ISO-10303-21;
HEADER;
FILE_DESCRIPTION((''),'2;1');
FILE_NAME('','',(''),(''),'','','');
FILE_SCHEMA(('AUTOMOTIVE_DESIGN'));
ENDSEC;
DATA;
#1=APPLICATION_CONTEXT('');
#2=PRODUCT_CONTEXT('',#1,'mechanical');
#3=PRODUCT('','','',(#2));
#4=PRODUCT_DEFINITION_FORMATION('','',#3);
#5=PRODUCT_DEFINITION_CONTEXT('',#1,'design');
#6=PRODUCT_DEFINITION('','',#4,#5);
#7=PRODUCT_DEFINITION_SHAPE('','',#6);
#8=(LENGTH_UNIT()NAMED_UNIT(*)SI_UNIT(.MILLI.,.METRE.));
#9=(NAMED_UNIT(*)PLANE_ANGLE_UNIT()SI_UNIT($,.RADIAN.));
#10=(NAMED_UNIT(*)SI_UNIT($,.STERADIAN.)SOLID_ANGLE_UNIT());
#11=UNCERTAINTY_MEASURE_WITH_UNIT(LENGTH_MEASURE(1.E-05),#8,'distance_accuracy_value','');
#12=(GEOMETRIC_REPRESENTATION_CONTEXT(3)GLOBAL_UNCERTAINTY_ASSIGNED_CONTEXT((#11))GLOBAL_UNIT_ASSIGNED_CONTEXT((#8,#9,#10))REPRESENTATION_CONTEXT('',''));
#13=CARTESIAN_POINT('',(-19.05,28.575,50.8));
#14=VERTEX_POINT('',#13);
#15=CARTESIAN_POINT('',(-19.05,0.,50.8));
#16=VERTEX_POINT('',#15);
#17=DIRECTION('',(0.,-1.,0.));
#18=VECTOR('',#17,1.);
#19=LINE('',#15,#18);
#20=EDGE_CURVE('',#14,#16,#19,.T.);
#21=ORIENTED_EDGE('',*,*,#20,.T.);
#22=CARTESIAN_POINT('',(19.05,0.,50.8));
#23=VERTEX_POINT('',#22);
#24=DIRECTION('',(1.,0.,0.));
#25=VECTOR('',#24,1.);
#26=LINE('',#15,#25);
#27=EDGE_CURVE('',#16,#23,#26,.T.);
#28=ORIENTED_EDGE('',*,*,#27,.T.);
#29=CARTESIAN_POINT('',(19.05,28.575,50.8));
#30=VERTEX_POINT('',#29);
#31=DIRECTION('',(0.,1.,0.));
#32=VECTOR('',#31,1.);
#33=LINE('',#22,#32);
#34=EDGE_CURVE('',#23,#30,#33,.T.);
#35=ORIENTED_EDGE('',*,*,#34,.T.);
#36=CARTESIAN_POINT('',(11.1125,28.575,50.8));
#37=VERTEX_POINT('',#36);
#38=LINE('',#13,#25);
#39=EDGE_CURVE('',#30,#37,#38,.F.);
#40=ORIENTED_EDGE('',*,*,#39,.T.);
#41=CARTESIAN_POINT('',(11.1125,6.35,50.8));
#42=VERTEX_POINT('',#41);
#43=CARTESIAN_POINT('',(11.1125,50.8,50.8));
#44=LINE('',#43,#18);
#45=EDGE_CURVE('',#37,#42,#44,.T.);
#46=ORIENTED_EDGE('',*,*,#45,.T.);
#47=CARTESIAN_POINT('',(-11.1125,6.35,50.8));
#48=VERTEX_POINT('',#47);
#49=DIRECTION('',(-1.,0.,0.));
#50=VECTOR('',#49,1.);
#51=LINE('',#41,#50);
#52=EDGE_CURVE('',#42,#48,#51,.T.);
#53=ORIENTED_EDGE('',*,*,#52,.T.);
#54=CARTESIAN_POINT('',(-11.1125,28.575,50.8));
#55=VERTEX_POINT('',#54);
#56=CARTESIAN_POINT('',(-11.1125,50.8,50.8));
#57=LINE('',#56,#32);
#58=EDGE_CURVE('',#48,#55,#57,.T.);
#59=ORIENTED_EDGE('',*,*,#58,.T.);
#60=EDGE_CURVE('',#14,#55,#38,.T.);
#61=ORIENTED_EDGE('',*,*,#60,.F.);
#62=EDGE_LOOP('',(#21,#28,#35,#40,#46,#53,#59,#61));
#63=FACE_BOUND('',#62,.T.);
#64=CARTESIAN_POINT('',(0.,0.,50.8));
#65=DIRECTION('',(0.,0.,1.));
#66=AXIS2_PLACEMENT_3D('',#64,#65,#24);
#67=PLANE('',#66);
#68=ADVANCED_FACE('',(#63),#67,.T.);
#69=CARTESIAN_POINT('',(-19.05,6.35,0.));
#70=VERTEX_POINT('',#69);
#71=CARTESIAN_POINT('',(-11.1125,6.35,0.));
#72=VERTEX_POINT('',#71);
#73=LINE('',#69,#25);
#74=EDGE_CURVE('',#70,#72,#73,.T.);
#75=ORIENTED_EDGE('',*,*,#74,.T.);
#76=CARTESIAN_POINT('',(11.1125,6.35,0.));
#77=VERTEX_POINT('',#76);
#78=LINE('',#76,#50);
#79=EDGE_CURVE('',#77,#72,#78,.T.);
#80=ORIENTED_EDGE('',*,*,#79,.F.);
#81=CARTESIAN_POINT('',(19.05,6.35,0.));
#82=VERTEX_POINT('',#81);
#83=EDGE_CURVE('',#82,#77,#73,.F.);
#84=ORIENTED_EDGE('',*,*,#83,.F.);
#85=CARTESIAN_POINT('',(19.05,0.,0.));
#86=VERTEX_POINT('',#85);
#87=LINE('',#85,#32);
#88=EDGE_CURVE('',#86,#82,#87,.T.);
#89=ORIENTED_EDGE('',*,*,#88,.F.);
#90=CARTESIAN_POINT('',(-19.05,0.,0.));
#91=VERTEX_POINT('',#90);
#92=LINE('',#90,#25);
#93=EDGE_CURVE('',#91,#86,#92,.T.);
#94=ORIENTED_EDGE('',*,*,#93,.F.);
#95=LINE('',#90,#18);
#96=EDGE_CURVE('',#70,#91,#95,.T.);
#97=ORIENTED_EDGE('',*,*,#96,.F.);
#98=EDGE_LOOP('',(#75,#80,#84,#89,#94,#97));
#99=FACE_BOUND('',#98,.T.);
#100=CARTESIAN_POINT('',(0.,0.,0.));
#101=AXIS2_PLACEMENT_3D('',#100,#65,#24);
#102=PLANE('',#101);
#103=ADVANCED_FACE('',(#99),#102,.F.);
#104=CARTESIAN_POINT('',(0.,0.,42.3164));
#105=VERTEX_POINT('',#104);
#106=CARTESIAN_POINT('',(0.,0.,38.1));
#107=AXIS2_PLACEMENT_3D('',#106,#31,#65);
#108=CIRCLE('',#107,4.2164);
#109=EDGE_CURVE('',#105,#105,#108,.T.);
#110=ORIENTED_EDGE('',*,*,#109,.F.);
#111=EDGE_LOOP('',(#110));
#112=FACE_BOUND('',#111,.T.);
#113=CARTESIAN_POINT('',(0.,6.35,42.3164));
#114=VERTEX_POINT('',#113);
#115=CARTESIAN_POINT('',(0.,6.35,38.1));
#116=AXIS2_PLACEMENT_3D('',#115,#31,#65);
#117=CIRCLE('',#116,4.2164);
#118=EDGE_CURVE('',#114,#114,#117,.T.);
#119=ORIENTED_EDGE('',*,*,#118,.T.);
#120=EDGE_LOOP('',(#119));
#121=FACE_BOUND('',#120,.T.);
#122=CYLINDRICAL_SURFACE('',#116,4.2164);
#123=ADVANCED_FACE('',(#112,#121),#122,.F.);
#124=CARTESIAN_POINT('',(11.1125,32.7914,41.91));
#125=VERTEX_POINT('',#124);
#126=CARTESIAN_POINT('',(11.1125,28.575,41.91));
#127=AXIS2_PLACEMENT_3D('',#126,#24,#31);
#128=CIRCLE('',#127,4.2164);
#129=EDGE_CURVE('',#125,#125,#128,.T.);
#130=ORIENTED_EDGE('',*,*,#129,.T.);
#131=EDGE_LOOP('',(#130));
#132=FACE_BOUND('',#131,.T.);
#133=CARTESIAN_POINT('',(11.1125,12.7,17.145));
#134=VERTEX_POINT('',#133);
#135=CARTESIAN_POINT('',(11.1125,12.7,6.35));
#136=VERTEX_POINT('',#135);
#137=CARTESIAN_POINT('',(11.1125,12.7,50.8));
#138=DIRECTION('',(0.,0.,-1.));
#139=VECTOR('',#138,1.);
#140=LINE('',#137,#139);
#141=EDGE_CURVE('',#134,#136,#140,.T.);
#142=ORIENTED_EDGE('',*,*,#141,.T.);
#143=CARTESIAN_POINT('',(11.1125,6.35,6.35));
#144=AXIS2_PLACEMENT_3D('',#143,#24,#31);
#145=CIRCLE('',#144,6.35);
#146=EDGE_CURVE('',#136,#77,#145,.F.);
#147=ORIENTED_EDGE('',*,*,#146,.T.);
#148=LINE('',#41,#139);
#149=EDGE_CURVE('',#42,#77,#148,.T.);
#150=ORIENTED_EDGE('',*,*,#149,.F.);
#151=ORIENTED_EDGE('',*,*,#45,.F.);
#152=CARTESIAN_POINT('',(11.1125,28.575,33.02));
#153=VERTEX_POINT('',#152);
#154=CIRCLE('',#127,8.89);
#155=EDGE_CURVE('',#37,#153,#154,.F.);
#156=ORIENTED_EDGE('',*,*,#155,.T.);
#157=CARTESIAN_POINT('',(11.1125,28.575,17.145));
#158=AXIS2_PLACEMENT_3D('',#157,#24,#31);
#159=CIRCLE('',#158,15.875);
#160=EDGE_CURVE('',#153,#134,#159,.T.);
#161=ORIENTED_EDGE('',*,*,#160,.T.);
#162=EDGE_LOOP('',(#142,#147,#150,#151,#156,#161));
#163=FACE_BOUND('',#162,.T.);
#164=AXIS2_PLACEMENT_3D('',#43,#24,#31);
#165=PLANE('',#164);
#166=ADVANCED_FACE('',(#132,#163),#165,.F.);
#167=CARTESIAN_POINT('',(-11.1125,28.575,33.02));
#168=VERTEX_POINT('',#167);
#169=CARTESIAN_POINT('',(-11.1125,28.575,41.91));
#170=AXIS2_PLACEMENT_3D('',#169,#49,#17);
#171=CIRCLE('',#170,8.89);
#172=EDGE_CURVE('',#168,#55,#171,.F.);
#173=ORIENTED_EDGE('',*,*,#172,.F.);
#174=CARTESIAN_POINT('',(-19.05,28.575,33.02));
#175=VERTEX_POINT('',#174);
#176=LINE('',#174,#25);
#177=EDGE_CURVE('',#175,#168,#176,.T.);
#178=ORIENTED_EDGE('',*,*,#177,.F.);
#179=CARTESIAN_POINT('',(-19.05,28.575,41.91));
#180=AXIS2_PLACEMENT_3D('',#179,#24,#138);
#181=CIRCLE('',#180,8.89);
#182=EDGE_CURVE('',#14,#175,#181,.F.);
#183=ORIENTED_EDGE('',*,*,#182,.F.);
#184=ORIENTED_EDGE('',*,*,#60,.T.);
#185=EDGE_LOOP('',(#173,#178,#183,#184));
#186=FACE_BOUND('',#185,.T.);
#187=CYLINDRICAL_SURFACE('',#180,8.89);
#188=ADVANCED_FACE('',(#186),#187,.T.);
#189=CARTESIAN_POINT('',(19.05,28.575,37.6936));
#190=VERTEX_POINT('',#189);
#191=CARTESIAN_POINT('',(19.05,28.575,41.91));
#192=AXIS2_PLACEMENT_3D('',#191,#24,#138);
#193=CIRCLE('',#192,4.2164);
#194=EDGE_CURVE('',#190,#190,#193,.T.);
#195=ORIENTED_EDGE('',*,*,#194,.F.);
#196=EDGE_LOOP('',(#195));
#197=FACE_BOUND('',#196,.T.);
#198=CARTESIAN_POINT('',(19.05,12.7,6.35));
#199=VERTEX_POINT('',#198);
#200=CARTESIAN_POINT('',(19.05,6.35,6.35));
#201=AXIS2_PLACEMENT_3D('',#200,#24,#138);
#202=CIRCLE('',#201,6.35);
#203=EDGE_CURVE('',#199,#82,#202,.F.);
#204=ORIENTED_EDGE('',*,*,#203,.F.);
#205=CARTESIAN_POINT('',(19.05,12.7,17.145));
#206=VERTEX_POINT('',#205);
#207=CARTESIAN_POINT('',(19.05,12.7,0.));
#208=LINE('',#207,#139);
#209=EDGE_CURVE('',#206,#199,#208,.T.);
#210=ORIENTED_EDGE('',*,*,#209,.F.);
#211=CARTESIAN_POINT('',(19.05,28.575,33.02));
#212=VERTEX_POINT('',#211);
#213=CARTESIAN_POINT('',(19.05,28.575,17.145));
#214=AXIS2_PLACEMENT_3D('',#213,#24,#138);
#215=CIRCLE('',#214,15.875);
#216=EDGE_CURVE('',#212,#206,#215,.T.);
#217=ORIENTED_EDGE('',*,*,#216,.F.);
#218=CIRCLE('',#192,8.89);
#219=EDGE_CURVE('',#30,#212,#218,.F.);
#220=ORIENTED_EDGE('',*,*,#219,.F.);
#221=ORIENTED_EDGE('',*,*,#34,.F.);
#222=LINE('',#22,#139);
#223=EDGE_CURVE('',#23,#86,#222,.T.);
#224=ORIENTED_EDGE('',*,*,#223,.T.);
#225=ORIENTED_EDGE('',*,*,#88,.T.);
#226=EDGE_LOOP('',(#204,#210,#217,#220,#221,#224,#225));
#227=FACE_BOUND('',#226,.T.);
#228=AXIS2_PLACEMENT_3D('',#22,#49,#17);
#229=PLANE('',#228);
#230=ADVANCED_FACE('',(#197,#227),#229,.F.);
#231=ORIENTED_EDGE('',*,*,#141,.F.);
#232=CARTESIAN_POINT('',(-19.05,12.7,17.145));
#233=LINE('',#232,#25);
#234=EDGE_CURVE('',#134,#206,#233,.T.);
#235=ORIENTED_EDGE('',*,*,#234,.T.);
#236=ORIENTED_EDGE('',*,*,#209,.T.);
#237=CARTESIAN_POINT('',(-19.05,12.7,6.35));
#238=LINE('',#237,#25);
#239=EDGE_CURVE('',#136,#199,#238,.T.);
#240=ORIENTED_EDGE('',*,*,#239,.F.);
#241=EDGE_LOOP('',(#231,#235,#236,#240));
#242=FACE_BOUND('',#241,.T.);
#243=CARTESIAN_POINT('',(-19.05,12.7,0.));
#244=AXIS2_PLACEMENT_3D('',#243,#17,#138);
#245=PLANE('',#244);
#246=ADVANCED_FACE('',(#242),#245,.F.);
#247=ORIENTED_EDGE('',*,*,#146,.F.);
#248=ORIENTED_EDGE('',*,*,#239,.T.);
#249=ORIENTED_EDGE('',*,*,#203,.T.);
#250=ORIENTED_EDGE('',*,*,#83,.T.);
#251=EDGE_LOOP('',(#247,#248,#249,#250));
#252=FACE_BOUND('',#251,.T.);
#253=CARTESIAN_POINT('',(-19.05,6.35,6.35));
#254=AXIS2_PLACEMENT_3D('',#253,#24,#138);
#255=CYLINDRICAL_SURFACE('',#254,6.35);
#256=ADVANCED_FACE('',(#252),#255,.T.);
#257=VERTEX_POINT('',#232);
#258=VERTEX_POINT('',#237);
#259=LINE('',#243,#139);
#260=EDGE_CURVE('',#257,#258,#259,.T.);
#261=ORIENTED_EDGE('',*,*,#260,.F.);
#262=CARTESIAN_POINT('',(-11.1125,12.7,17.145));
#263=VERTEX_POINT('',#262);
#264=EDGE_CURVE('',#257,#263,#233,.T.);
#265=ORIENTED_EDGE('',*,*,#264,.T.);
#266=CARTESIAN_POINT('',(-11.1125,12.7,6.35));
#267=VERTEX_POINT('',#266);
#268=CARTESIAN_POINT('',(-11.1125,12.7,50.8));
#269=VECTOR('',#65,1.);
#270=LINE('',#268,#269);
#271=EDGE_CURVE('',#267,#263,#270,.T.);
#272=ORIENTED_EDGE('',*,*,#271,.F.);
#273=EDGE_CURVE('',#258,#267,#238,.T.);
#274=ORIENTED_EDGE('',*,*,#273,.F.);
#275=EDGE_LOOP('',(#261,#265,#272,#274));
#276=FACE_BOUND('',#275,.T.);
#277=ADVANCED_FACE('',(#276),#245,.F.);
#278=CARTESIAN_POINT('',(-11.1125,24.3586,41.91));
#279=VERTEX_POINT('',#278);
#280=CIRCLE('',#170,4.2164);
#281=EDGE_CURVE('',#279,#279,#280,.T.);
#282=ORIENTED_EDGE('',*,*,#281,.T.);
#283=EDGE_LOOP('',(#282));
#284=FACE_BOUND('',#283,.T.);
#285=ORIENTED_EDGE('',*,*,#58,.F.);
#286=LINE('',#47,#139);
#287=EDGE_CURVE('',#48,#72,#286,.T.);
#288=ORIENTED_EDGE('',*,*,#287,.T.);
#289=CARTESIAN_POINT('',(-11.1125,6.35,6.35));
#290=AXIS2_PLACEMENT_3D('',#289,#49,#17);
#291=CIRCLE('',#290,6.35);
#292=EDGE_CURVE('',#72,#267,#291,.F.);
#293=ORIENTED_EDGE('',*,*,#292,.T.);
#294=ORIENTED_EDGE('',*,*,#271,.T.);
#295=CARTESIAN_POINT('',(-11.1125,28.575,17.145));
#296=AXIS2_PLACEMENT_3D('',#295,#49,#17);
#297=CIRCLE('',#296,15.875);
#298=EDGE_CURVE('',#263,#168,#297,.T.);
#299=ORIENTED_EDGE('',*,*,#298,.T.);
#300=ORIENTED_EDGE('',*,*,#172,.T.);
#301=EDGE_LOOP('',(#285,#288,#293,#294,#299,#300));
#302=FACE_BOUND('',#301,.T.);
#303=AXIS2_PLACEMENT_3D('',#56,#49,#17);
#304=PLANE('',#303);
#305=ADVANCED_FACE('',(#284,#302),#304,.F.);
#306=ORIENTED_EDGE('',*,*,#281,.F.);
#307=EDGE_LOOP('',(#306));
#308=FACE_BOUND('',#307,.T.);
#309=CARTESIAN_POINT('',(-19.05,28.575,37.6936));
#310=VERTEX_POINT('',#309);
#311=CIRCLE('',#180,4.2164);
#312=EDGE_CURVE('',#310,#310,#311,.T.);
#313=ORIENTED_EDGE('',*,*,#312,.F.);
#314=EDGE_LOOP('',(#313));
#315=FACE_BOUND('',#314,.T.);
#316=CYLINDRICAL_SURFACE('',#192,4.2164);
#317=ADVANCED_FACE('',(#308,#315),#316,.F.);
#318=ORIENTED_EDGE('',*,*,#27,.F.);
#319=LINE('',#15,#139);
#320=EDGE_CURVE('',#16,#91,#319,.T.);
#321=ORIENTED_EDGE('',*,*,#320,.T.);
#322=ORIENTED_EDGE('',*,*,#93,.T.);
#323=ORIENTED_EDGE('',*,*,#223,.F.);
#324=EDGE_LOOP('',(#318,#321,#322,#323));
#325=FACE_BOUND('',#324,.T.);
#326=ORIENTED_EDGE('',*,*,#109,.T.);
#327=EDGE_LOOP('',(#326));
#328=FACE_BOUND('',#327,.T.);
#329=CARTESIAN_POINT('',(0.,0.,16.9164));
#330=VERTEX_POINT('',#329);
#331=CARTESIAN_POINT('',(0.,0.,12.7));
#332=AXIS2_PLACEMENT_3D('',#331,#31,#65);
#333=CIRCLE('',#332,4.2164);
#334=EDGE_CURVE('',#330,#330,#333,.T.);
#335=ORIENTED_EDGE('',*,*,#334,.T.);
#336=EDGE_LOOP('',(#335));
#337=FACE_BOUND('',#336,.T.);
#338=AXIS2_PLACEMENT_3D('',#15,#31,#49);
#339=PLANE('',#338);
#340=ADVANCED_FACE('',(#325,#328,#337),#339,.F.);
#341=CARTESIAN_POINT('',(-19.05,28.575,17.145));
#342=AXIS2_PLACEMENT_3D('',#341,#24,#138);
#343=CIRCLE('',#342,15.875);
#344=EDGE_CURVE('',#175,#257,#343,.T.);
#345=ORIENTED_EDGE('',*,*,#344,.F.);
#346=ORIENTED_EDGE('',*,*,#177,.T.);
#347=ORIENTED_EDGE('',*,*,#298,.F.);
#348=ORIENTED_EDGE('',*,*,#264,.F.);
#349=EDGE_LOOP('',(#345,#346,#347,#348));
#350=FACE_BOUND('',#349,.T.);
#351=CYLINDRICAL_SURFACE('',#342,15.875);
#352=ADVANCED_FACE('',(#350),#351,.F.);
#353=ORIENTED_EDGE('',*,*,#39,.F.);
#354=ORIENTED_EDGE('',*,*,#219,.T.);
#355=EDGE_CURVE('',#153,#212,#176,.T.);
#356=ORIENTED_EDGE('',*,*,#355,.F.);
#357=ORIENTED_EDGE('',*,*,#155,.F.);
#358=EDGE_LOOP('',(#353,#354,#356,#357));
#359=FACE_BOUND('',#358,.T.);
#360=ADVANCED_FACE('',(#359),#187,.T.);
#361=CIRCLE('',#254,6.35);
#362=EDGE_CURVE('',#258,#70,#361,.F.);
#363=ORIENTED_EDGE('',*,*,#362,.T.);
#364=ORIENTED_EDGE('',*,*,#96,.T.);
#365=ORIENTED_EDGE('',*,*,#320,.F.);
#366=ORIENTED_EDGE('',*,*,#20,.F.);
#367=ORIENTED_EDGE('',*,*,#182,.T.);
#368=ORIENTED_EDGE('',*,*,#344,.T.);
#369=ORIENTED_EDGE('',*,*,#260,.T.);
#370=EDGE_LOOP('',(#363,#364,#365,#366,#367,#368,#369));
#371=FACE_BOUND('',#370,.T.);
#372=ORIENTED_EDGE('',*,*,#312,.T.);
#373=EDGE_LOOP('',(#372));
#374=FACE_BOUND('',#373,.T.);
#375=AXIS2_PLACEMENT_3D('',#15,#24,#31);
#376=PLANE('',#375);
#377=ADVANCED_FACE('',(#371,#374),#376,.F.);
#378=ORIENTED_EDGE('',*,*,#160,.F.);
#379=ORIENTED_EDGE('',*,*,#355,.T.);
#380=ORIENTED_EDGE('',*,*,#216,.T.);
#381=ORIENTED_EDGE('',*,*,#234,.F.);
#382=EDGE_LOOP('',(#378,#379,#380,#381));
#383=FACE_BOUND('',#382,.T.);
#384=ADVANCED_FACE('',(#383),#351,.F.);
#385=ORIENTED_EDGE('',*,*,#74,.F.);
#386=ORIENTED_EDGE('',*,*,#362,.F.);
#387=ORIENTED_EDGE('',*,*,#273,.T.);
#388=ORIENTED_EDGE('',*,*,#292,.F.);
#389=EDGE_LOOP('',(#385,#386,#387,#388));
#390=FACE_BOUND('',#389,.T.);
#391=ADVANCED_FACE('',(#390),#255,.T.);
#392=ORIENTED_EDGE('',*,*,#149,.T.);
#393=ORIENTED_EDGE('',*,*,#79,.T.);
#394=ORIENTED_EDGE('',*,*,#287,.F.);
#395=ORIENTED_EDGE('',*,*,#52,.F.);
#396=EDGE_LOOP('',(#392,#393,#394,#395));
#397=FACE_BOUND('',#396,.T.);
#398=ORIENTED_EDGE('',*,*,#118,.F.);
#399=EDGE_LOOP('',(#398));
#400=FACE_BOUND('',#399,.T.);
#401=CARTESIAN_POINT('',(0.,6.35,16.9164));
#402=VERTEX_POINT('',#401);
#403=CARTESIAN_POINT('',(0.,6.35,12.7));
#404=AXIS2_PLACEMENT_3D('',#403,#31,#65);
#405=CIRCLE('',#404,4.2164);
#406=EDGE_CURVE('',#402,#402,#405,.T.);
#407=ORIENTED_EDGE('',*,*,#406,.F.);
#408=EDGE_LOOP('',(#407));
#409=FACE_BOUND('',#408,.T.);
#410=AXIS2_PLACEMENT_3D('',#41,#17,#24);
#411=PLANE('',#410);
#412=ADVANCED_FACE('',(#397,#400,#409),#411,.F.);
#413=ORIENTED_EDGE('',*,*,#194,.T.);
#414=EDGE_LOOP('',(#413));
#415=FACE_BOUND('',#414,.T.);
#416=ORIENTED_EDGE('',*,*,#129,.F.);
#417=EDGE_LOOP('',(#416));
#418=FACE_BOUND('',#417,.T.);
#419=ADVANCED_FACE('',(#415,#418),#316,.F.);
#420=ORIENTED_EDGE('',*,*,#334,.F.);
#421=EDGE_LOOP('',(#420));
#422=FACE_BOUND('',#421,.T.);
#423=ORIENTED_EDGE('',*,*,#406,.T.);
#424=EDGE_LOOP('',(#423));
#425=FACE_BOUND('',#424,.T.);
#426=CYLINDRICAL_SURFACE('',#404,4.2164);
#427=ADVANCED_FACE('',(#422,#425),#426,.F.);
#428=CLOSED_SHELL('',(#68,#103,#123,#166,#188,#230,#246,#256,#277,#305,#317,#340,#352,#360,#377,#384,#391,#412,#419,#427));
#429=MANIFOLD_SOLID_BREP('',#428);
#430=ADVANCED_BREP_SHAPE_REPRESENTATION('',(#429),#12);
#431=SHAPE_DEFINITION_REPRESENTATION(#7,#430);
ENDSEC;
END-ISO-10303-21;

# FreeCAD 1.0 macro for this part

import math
import FreeCAD as App
import Part
import Sketcher
from FreeCAD import Vector
Q = App.Units.Quantity

doc = App.newDocument("Part")
body = doc.addObject("PartDesign::Body", "Body")

sketch1 = doc.addObject("Sketcher::SketchObject", "Sketch")
body.addObject(sketch1)
sketch1.AttachmentSupport = (doc.XY_Plane, [""])
sketch1.MapMode = "FlatFace"
sketch1.addGeometry([
    Part.LineSegment(Vector(-19, 0, 0), Vector(19, 0, 0)),
    Part.LineSegment(Vector(19, 0, 0), Vector(19, 51, 0)),
    Part.LineSegment(Vector(19, 51, 0), Vector(11, 51, 0)),
    Part.LineSegment(Vector(11, 51, 0), Vector(11, 6, 0)),
    Part.LineSegment(Vector(11, 6, 0), Vector(-11, 6, 0)),
    Part.LineSegment(Vector(-11, 6, 0), Vector(-11, 51, 0)),
    Part.LineSegment(Vector(-11, 51, 0), Vector(-19, 51, 0)),
    Part.LineSegment(Vector(-19, 51, 0), Vector(-19, 0, 0)),
], False)
sketch1.addConstraint([
    Sketcher.Constraint("Coincident", 0, 2, 1, 1),
    Sketcher.Constraint("Coincident", 1, 2, 2, 1),
    Sketcher.Constraint("Coincident", 2, 2, 3, 1),
    Sketcher.Constraint("Coincident", 3, 2, 4, 1),
    Sketcher.Constraint("Coincident", 4, 2, 5, 1),
    Sketcher.Constraint("Coincident", 5, 2, 6, 1),
    Sketcher.Constraint("Coincident", 6, 2, 7, 1),
    Sketcher.Constraint("Coincident", 7, 2, 0, 1),
    Sketcher.Constraint("Horizontal", 0),
    Sketcher.Constraint("Vertical", 1),
    Sketcher.Constraint("Horizontal", 2),
    Sketcher.Constraint("Vertical", 3),
    Sketcher.Constraint("Horizontal", 4),
    Sketcher.Constraint("Vertical", 5),
    Sketcher.Constraint("Horizontal", 6),
    Sketcher.Constraint("Vertical", 7),
    Sketcher.Constraint("Symmetric", 0, 2, 7, 2, -1, 1),
    Sketcher.Constraint("Symmetric", 2, 2, 5, 2, -2),
    Sketcher.Constraint("DistanceY", 1, 1, 1, 2, Q("2 in")),
    Sketcher.Constraint("DistanceX", 0, 1, 0, 2, Q("1.5 in")),
    Sketcher.Constraint("DistanceY", 3, 2, 3, 1, Q("1.75 in")),
    Sketcher.Constraint("DistanceX", 2, 2, 2, 1, Q("0.3125 in")),
])
pad1 = doc.addObject("PartDesign::Pad", "Pad")
body.addObject(pad1)
pad1.Profile = sketch1
pad1.Length = Q("2 in")

sketch2 = doc.addObject("Sketcher::SketchObject", "Sketch001")
body.addObject(sketch2)
sketch2.AttachmentSupport = (doc.XZ_Plane, [""])
sketch2.MapMode = "FlatFace"
sketch2.AttachmentOffset = App.Placement(Vector(0, 0, -0.25 * 25.4), App.Rotation())
sketch2.addGeometry([
    Part.Circle(Vector(0, 38.1, 0), Vector(0, 0, 1), 4.2),
    Part.Circle(Vector(0, 12.7, 0), Vector(0, 0, 1), 4.2),
], False)
sketch2.addConstraint([
    Sketcher.Constraint("Equal", 0, 1),
    Sketcher.Constraint("PointOnObject", 0, 3, -2),
    Sketcher.Constraint("PointOnObject", 1, 3, -2),
    Sketcher.Constraint("Diameter", 0, Q("0.332 in")),
    Sketcher.Constraint("DistanceY", 1, 3, 0, 3, Q("1 in")),
    Sketcher.Constraint("DistanceY", -1, 1, 0, 3, Q("1.5 in")),
])
doc.recompute()
hole = doc.addObject("PartDesign::Hole", "Hole")
body.addObject(hole)
hole.Profile = sketch2
hole.ThreadType = "None"
hole.Diameter = Q("0.332 in")
hole.DepthType = "ThroughAll"
hole.Reversed = True

sketch3 = doc.addObject("Sketcher::SketchObject", "Sketch002")
body.addObject(sketch3)
sketch3.AttachmentSupport = (doc.YZ_Plane, [""])
sketch3.MapMode = "FlatFace"
sketch3.addGeometry([
    Part.LineSegment(Vector(51, 0, 0), Vector(51, 51, 0)),
    Part.LineSegment(Vector(51, 51, 0), Vector(29, 51, 0)),
    Part.ArcOfCircle(Part.Circle(Vector(29, 42, 0), Vector(0, 0, 1), 9), math.radians(-90), math.radians(90)),
    Part.ArcOfCircle(Part.Circle(Vector(29, 17, 0), Vector(0, 0, 1), 16), math.radians(90), math.radians(180)),
    Part.LineSegment(Vector(13, 17, 0), Vector(13, 6, 0)),
    Part.ArcOfCircle(Part.Circle(Vector(6, 6, 0), Vector(0, 0, 1), 6), math.radians(-90), math.radians(0)),
    Part.LineSegment(Vector(6, 0, 0), Vector(51, 0, 0)),
], False)
sketch3.addConstraint([
    Sketcher.Constraint("Coincident", 0, 2, 1, 1),
    Sketcher.Constraint("Tangent", 1, 2, 2, 2),
    Sketcher.Constraint("Tangent", 2, 1, 3, 1),
    Sketcher.Constraint("Tangent", 3, 2, 4, 1),
    Sketcher.Constraint("Tangent", 4, 2, 5, 2),
    Sketcher.Constraint("Tangent", 5, 1, 6, 1),
    Sketcher.Constraint("Coincident", 6, 2, 0, 1),
    Sketcher.Constraint("Vertical", 0),
    Sketcher.Constraint("Horizontal", 1),
    Sketcher.Constraint("Vertical", 4),
    Sketcher.Constraint("Horizontal", 6),
    Sketcher.Constraint("PointOnObject", 5, 1, -1),
    Sketcher.Constraint("Vertical", 2, 3, 3, 3),
    Sketcher.Constraint("DistanceY", 0, 1, 0, 2, Q("2 in")),
    Sketcher.Constraint("Radius", 2, Q("0.35 in")),
    Sketcher.Constraint("Radius", 5, Q("0.25 in")),
    Sketcher.Constraint("DistanceX", -1, 1, 0, 2, Q("2 in")),
    Sketcher.Constraint("Radius", 3, Q("0.625 in")),
    Sketcher.Constraint("DistanceX", 6, 1, 6, 2, Q("1.75 in")),
])
pocket1 = doc.addObject("PartDesign::Pocket", "Pocket")
body.addObject(pocket1)
pocket1.Profile = sketch3
pocket1.Type = "ThroughAll"
pocket1.Midplane = True

sketch4 = doc.addObject("Sketcher::SketchObject", "Sketch003")
body.addObject(sketch4)
sketch4.AttachmentSupport = (doc.YZ_Plane, [""])
sketch4.MapMode = "FlatFace"
sketch4.AttachmentOffset = App.Placement(Vector(0, 0, 0.75 * 25.4), App.Rotation())
sketch4.addGeometry(Part.Circle(Vector(28.6, 41.9, 0), Vector(0, 0, 1), 4.2), False)
sketch4.addConstraint([
    Sketcher.Constraint("Diameter", 0, Q("0.332 in")),
    Sketcher.Constraint("DistanceY", -1, 1, 0, 3, Q("1.65 in")),
    Sketcher.Constraint("DistanceX", -1, 1, 0, 3, Q("1.125 in")),
])
doc.recompute()
hole2 = doc.addObject("PartDesign::Hole", "Hole001")
body.addObject(hole2)
hole2.Profile = sketch4
hole2.ThreadType = "None"
hole2.Diameter = Q("0.332 in")
hole2.DepthType = "ThroughAll"

doc.recompute()
